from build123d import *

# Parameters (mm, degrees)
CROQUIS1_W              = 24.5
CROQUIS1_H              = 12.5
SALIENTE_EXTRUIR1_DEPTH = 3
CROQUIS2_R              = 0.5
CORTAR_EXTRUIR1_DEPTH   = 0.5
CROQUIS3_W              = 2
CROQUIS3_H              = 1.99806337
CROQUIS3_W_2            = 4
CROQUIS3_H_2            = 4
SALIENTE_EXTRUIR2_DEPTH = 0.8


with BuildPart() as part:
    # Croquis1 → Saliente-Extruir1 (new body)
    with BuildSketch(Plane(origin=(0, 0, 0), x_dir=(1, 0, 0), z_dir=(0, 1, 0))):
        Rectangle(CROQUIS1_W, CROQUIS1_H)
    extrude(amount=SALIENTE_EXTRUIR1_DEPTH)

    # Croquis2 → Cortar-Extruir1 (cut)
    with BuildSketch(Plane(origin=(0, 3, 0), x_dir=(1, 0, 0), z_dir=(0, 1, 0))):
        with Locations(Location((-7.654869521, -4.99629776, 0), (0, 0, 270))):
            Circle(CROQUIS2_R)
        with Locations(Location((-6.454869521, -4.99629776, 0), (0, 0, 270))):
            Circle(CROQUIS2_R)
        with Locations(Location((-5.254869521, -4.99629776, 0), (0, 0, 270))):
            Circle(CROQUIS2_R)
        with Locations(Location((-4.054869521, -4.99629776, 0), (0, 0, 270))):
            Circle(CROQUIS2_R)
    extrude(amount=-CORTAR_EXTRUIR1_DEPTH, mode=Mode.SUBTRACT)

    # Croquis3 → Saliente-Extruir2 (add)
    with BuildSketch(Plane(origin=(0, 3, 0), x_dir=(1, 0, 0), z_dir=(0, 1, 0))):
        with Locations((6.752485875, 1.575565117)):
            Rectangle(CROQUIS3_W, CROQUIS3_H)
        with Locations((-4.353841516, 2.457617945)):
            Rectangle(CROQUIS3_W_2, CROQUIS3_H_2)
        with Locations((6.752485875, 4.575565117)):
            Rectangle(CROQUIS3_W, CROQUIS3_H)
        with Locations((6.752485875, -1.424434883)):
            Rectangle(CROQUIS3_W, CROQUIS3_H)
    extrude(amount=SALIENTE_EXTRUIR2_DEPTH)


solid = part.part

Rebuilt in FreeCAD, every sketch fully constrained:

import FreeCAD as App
import Part
import Sketcher
from FreeCAD import Vector


def add_polygon(sketch, points):
    """Adds a closed chain of lines whose ends are joined by coincident constraints."""
    first, n = sketch.GeometryCount, len(points)
    for a, b in zip(points, points[1:] + points[:1]):
        sketch.addGeometry(Part.LineSegment(App.Vector(*a, 0), App.Vector(*b, 0)), False)
    for i in range(n):
        sketch.addConstraint(Sketcher.Constraint("Coincident", first + i, 2, first + (i + 1) % n, 1))

doc = App.newDocument("Part")
params = doc.addObject("Spreadsheet::Sheet", "Params")
for row, (alias, value) in enumerate([
    ("sketch1_width", "24.5 mm"),
    ("sketch1_height", "12.5 mm"),
    ("pad1_length", "3 mm"),
    ("sketch2_diameter", "1 mm"),
    ("pocket1_length", "0.5 mm"),
    ("sketch3_width", "2 mm"),
    ("sketch3_width2", "4 mm"),
    ("pad2_length", "0.8 mm"),
], start=1):
    params.set(f"A{row}", alias)
    params.set(f"B{row}", "=" + value)
    params.setAlias(f"B{row}", alias)

body = doc.addObject("PartDesign::Body", "Body")

# Sketch on XZ plane
sketch1 = doc.addObject("Sketcher::SketchObject", "Sketch")
body.addObject(sketch1)
sketch1.AttachmentSupport = (doc.XZ_Plane, [""])
sketch1.MapMode = "FlatFace"
add_polygon(sketch1, [(-12, -6), (-12, 6), (12, 6), (12, -6)])  # lines 0-3
sketch1.addConstraint([
    Sketcher.Constraint("Vertical", 0),
    Sketcher.Constraint("Horizontal", 1),
    Sketcher.Constraint("Vertical", 2),
    Sketcher.Constraint("Horizontal", 3),
    Sketcher.Constraint("Symmetric", 0, 2, 2, 2, -1, 1),
    Sketcher.Constraint("DistanceX", 1, 1, 1, 2, 24.5),
    Sketcher.Constraint("DistanceY", 0, 1, 0, 2, 12.5),
])
sketch1.setExpression("Constraints[9]", "Params.sketch1_width")
sketch1.setExpression("Constraints[10]", "Params.sketch1_height")
pad1 = doc.addObject("PartDesign::Pad", "Pad")
body.addObject(pad1)
pad1.Profile = sketch1
pad1.setExpression("Length", "Params.pad1_length")
pad1.Reversed = True

# Sketch on XZ plane
sketch2 = doc.addObject("Sketcher::SketchObject", "Sketch001")
body.addObject(sketch2)
sketch2.AttachmentSupport = (doc.XZ_Plane, [""])
sketch2.MapMode = "FlatFace"
sketch2.AttachmentOffset = App.Placement(Vector(0, 0, -3), App.Rotation())
sketch2.addGeometry([
    Part.Circle(Vector(-7.7, 5, 0), Vector(0, 0, 1), 0.5),
    Part.Circle(Vector(-6.5, 5, 0), Vector(0, 0, 1), 0.5),
    Part.Circle(Vector(-5.3, 5, 0), Vector(0, 0, 1), 0.5),
    Part.Circle(Vector(-4.1, 5, 0), Vector(0, 0, 1), 0.5),
], False)
sketch2.addConstraint([
    Sketcher.Constraint("Equal", 0, 1),
    Sketcher.Constraint("Equal", 1, 2),
    Sketcher.Constraint("Equal", 2, 3),
    Sketcher.Constraint("Horizontal", 0, 3, 1, 3),
    Sketcher.Constraint("Horizontal", 1, 3, 2, 3),
    Sketcher.Constraint("Horizontal", 2, 3, 3, 3),
    Sketcher.Constraint("Diameter", 0, 1.0),
    Sketcher.Constraint("DistanceX", 0, 3, 1, 3, 1.2),
    Sketcher.Constraint("DistanceX", 1, 3, 2, 3, 1.2),
    Sketcher.Constraint("DistanceX", 2, 3, 3, 3, 1.2),
    Sketcher.Constraint("DistanceX", 0, 3, -1, 1, 7.65487),
    Sketcher.Constraint("DistanceY", -1, 1, 0, 3, 4.996298),
])
sketch2.setExpression("Constraints[6]", "Params.sketch2_diameter")
pocket1 = doc.addObject("PartDesign::Pocket", "Pocket")
body.addObject(pocket1)
pocket1.Profile = sketch2
pocket1.setExpression("Length", "Params.pocket1_length")
pocket1.Reversed = True

# Sketch on XZ plane
sketch3 = doc.addObject("Sketcher::SketchObject", "Sketch002")
body.addObject(sketch3)
sketch3.AttachmentSupport = (doc.XZ_Plane, [""])
sketch3.MapMode = "FlatFace"
sketch3.AttachmentOffset = App.Placement(Vector(0, 0, -3), App.Rotation())
add_polygon(sketch3, [(5.8, -2.6), (5.8, -0.6), (7.8, -0.6), (7.8, -2.6)])  # lines 0-3
add_polygon(sketch3, [(-6.4, -4.5), (-6.4, -0.5), (-2.4, -0.5), (-2.4, -4.5)])  # lines 4-7
add_polygon(sketch3, [(5.8, -5.6), (5.8, -3.6), (7.8, -3.6), (7.8, -5.6)])  # lines 8-11
add_polygon(sketch3, [(5.8, 0.4), (5.8, 2.4), (7.8, 2.4), (7.8, 0.4)])  # lines 12-15
sketch3.addConstraint([
    Sketcher.Constraint("Vertical", 0),
    Sketcher.Constraint("Horizontal", 1),
    Sketcher.Constraint("Vertical", 2),
    Sketcher.Constraint("Horizontal", 3),
    Sketcher.Constraint("Vertical", 4),
    Sketcher.Constraint("Horizontal", 5),
    Sketcher.Constraint("Vertical", 6),
    Sketcher.Constraint("Horizontal", 7),
    Sketcher.Constraint("Vertical", 8),
    Sketcher.Constraint("Horizontal", 9),
    Sketcher.Constraint("Vertical", 10),
    Sketcher.Constraint("Horizontal", 11),
    Sketcher.Constraint("Vertical", 12),
    Sketcher.Constraint("Horizontal", 13),
    Sketcher.Constraint("Vertical", 14),
    Sketcher.Constraint("Horizontal", 15),
    Sketcher.Constraint("Vertical", 3, 2, 8, 2),
    Sketcher.Constraint("Vertical", 2, 2, 9, 2),
    Sketcher.Constraint("Vertical", 11, 2, 12, 2),
    Sketcher.Constraint("Vertical", 10, 2, 13, 2),
    Sketcher.Constraint("Equal", 7, 4),
    Sketcher.Constraint("Equal", 2, 8),
    Sketcher.Constraint("Equal", 10, 12),
    Sketcher.Constraint("DistanceX", 1, 1, 1, 2, 2.0),
    Sketcher.Constraint("DistanceX", 5, 1, 5, 2, 4.0),
    Sketcher.Constraint("DistanceY", 8, 2, 0, 2, 3.0),
    Sketcher.Constraint("DistanceY", 0, 2, 12, 2, 3.0),
    Sketcher.Constraint("DistanceY", 0, 1, 0, 2, 1.998063),
    Sketcher.Constraint("DistanceX", 4, 2, -1, 1, 6.353842),
    Sketcher.Constraint("DistanceY", 3, 2, 4, 2, 2.116979),
    Sketcher.Constraint("DistanceX", -1, 1, 0, 2, 5.752486),
    Sketcher.Constraint("DistanceY", 0, 2, -1, 1, 0.576533),
])
sketch3.setExpression("Constraints[39]", "Params.sketch3_width")
sketch3.setExpression("Constraints[40]", "Params.sketch3_width2")
pad2 = doc.addObject("PartDesign::Pad", "Pad001")
body.addObject(pad2)
pad2.Profile = sketch3
pad2.setExpression("Length", "Params.pad2_length")
pad2.Reversed = True

doc.recompute()
